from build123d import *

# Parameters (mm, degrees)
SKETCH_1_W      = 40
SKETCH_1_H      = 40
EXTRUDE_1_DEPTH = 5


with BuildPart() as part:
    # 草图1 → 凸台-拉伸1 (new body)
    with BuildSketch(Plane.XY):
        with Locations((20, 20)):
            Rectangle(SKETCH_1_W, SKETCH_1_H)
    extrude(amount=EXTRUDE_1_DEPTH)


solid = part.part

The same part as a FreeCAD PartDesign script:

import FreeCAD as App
import Part
import Sketcher
Q = App.Units.Quantity


def add_polygon(sketch, points):
    """Adds a closed chain of lines whose ends are joined by coincident constraints."""
    first, n = sketch.GeometryCount, len(points)
    for a, b in zip(points, points[1:] + points[:1]):
        sketch.addGeometry(Part.LineSegment(App.Vector(*a, 0), App.Vector(*b, 0)), False)
    for i in range(n):
        sketch.addConstraint(Sketcher.Constraint("Coincident", first + i, 2, first + (i + 1) % n, 1))

doc = App.newDocument("Part")
body = doc.addObject("PartDesign::Body", "Body")

sketch1 = body.newObject("Sketcher::SketchObject", "Sketch")
sketch1.AttachmentSupport = (doc.getObject("XY_Plane"), [""])
sketch1.MapMode = "FlatFace"
add_polygon(sketch1, [(0, 40), (0, 0), (40, 0), (40, 40)])
sketch1.addConstraint([
    Sketcher.Constraint("Vertical", 0),
    Sketcher.Constraint("Horizontal", 1),
    Sketcher.Constraint("Vertical", 2),
    Sketcher.Constraint("Horizontal", 3),
    Sketcher.Constraint("Coincident", 0, 2, -1, 1),
    Sketcher.Constraint("Equal", 3, 0),
    Sketcher.Constraint("DistanceX", 1, 1, 1, 2, Q("40 mm")),
])
pad1 = body.newObject("PartDesign::Pad", "Pad")
pad1.Profile = sketch1
pad1.Length = 5

doc.recompute()
